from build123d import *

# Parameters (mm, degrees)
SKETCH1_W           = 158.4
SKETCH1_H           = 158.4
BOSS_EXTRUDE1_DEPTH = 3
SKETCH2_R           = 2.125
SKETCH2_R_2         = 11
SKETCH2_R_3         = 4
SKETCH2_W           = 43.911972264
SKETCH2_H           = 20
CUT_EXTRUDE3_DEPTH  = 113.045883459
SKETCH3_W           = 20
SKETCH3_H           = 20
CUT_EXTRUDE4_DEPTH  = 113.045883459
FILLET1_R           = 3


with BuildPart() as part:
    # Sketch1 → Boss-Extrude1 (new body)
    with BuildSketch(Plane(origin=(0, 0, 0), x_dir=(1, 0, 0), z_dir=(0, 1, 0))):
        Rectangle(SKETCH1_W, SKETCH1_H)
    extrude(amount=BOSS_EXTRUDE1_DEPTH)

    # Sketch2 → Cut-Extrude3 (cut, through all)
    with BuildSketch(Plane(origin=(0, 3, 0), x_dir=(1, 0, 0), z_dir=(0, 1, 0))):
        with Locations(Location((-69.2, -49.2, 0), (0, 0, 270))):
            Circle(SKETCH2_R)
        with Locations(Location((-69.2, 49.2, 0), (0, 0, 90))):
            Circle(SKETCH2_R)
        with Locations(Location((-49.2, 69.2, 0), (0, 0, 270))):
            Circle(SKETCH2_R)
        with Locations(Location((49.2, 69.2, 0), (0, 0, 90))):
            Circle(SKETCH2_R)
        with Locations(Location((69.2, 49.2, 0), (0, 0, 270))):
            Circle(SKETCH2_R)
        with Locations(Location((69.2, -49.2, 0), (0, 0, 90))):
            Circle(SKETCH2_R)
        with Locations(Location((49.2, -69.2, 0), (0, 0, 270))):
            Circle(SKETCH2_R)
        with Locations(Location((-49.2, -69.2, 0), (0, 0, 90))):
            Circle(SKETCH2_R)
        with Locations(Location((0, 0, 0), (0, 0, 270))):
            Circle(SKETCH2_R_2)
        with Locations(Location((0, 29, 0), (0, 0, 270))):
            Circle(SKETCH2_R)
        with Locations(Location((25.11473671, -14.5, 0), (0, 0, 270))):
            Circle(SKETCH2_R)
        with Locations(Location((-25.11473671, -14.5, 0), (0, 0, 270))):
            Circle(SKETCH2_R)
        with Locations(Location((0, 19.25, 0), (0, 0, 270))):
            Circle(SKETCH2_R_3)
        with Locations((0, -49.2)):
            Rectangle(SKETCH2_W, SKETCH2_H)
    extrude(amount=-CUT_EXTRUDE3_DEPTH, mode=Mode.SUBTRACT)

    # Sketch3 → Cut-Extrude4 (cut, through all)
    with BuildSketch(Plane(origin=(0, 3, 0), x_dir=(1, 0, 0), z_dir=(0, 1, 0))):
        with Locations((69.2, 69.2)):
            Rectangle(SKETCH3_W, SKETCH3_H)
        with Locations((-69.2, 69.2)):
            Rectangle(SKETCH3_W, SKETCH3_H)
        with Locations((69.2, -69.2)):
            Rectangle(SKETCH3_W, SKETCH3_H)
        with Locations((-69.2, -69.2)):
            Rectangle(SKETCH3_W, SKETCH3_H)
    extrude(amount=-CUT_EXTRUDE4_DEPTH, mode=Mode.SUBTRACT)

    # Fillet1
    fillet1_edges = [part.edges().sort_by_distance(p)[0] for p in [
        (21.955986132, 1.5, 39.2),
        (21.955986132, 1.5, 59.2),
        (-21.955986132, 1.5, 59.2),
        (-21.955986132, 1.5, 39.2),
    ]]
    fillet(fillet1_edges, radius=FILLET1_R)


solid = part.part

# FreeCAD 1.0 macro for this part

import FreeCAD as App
import Part
import Sketcher
from FreeCAD import Vector


def edges_at(feature, points):
    """Names of the edges that pass closest to the given points."""
    edges = feature.Shape.Edges
    near = lambda p: min(range(len(edges)), key=lambda i: edges[i].distToShape(Part.Vertex(*p))[0])
    return sorted({f"Edge{near(p) + 1}" for p in points})

doc = App.newDocument("Part")
params = doc.addObject("Spreadsheet::Sheet", "Params")
for row, (alias, value) in enumerate([
    ("sketch1_width", "158.4 mm"),
    ("pad1_length", "3 mm"),
    ("sketch2_diameter", "22 mm"),
    ("sketch2_diameter2", "8 mm"),
    ("sketch2_diameter3", "4.25 mm"),
    ("sketch2_height", "20 mm"),
    ("sketch3_width", "20 mm"),
    ("fillet_radius", "3 mm"),
], start=1):
    params.set(f"A{row}", alias)
    params.set(f"B{row}", "=" + value)
    params.setAlias(f"B{row}", alias)

body = doc.addObject("PartDesign::Body", "Body")

sketch1 = doc.addObject("Sketcher::SketchObject", "Sketch")
body.addObject(sketch1)
sketch1.AttachmentSupport = (doc.XZ_Plane, [""])
sketch1.MapMode = "FlatFace"
sketch1.addGeometry(Part.LineSegment(Vector(-79, -79, 0), Vector(-79, 79, 0)), False)
sketch1.addGeometry(Part.LineSegment(Vector(-79, 79, 0), Vector(79, 79, 0)), False)
sketch1.addGeometry(Part.LineSegment(Vector(79, 79, 0), Vector(79, -79, 0)), False)
sketch1.addGeometry(Part.LineSegment(Vector(79, -79, 0), Vector(-79, -79, 0)), False)
sketch1.addConstraint(Sketcher.Constraint("Coincident", 0, 2, 1, 1))
sketch1.addConstraint(Sketcher.Constraint("Coincident", 1, 2, 2, 1))
sketch1.addConstraint(Sketcher.Constraint("Coincident", 2, 2, 3, 1))
sketch1.addConstraint(Sketcher.Constraint("Coincident", 3, 2, 0, 1))
sketch1.addConstraint(Sketcher.Constraint("Vertical", 0))
sketch1.addConstraint(Sketcher.Constraint("Horizontal", 1))
sketch1.addConstraint(Sketcher.Constraint("Vertical", 2))
sketch1.addConstraint(Sketcher.Constraint("Horizontal", 3))
sketch1.addConstraint(Sketcher.Constraint("Symmetric", 0, 2, 2, 2, -1, 1))
sketch1.addConstraint(Sketcher.Constraint("Equal", 3, 0))
sketch1.addConstraint(Sketcher.Constraint("DistanceX", 1, 1, 1, 2, 158.4))
sketch1.setExpression("Constraints[10]", "Params.sketch1_width")
pad1 = doc.addObject("PartDesign::Pad", "Pad")
body.addObject(pad1)
pad1.Profile = sketch1
pad1.setExpression("Length", "Params.pad1_length")
pad1.Reversed = True

sketch2 = doc.addObject("Sketcher::SketchObject", "Sketch001")
body.addObject(sketch2)
sketch2.AttachmentSupport = (doc.XZ_Plane, [""])
sketch2.MapMode = "FlatFace"
sketch2.AttachmentOffset = App.Placement(Vector(0, 0, -3), App.Rotation())
sketch2.addGeometry(Part.Circle(Vector(-69.2, 49.2, 0), Vector(0, 0, 1), 2.1), False)
sketch2.addGeometry(Part.Circle(Vector(-69.2, -49.2, 0), Vector(0, 0, 1), 2.1), False)
sketch2.addGeometry(Part.Circle(Vector(-49.2, -69.2, 0), Vector(0, 0, 1), 2.1), False)
sketch2.addGeometry(Part.Circle(Vector(49.2, -69.2, 0), Vector(0, 0, 1), 2.1), False)
sketch2.addGeometry(Part.Circle(Vector(69.2, -49.2, 0), Vector(0, 0, 1), 2.1), False)
sketch2.addGeometry(Part.Circle(Vector(69.2, 49.2, 0), Vector(0, 0, 1), 2.1), False)
sketch2.addGeometry(Part.Circle(Vector(49.2, 69.2, 0), Vector(0, 0, 1), 2.1), False)
sketch2.addGeometry(Part.Circle(Vector(-49.2, 69.2, 0), Vector(0, 0, 1), 2.1), False)
sketch2.addGeometry(Part.Circle(Vector(0, 0, 0), Vector(0, 0, 1), 11), False)
sketch2.addGeometry(Part.Circle(Vector(0, -29, 0), Vector(0, 0, 1), 2.1), False)
sketch2.addGeometry(Part.Circle(Vector(25.1, 14.5, 0), Vector(0, 0, 1), 2.1), False)
sketch2.addGeometry(Part.Circle(Vector(-25.1, 14.5, 0), Vector(0, 0, 1), 2.1), False)
sketch2.addGeometry(Part.Circle(Vector(0, -19.2, 0), Vector(0, 0, 1), 4), False)
sketch2.addGeometry(Part.LineSegment(Vector(-22, 39.2, 0), Vector(-22, 59.2, 0)), False)
sketch2.addGeometry(Part.LineSegment(Vector(-22, 59.2, 0), Vector(22, 59.2, 0)), False)
sketch2.addGeometry(Part.LineSegment(Vector(22, 59.2, 0), Vector(22, 39.2, 0)), False)
sketch2.addGeometry(Part.LineSegment(Vector(22, 39.2, 0), Vector(-22, 39.2, 0)), False)
sketch2.addConstraint(Sketcher.Constraint("Coincident", 13, 2, 14, 1))
sketch2.addConstraint(Sketcher.Constraint("Coincident", 14, 2, 15, 1))
sketch2.addConstraint(Sketcher.Constraint("Coincident", 15, 2, 16, 1))
sketch2.addConstraint(Sketcher.Constraint("Coincident", 16, 2, 13, 1))
sketch2.addConstraint(Sketcher.Constraint("Vertical", 13))
sketch2.addConstraint(Sketcher.Constraint("Horizontal", 14))
sketch2.addConstraint(Sketcher.Constraint("Vertical", 15))
sketch2.addConstraint(Sketcher.Constraint("Horizontal", 16))
sketch2.addConstraint(Sketcher.Constraint("Coincident", 8, 3, -1, 1))
sketch2.addConstraint(Sketcher.Constraint("Equal", 0, 1))
sketch2.addConstraint(Sketcher.Constraint("Equal", 1, 2))
sketch2.addConstraint(Sketcher.Constraint("Equal", 2, 3))
sketch2.addConstraint(Sketcher.Constraint("Equal", 3, 4))
sketch2.addConstraint(Sketcher.Constraint("Equal", 4, 5))
sketch2.addConstraint(Sketcher.Constraint("Equal", 5, 6))
sketch2.addConstraint(Sketcher.Constraint("Equal", 6, 7))
sketch2.addConstraint(Sketcher.Constraint("Equal", 7, 9))
sketch2.addConstraint(Sketcher.Constraint("Equal", 9, 10))
sketch2.addConstraint(Sketcher.Constraint("Equal", 10, 11))
sketch2.addConstraint(Sketcher.Constraint("Symmetric", 0, 3, 4, 3, -1, 1))
sketch2.addConstraint(Sketcher.Constraint("Symmetric", 1, 3, 5, 3, -1, 1))
sketch2.addConstraint(Sketcher.Constraint("Symmetric", 2, 3, 6, 3, -1, 1))
sketch2.addConstraint(Sketcher.Constraint("Symmetric", 3, 3, 7, 3, -1, 1))
sketch2.addConstraint(Sketcher.Constraint("Symmetric", 2, 3, 3, 3, -2))
sketch2.addConstraint(Sketcher.Constraint("Symmetric", 1, 3, 4, 3, -2))
sketch2.addConstraint(Sketcher.Constraint("Symmetric", 10, 3, 11, 3, -2))
sketch2.addConstraint(Sketcher.Constraint("PointOnObject", 9, 3, -2))
sketch2.addConstraint(Sketcher.Constraint("PointOnObject", 12, 3, -2))
sketch2.addConstraint(Sketcher.Constraint("Diameter", 8, 22.0))
sketch2.addConstraint(Sketcher.Constraint("Diameter", 12, 8.0))
sketch2.addConstraint(Sketcher.Constraint("Diameter", 0, 4.25))
sketch2.addConstraint(Sketcher.Constraint("DistanceY", 13, 1, 13, 2, 20.0))
sketch2.addConstraint(Sketcher.Constraint("DistanceY", 9, 3, -1, 1, 29.0))
sketch2.addConstraint(Sketcher.Constraint("DistanceX", 1, 3, 2, 3, 20.0))
sketch2.addConstraint(Sketcher.Constraint("DistanceY", 2, 3, 1, 3, 20.0))
sketch2.addConstraint(Sketcher.Constraint("DistanceY", 13, 2, 7, 3, 10.0))
sketch2.addConstraint(Sketcher.Constraint("DistanceX", 0, 3, -1, 1, 69.2))
sketch2.addConstraint(Sketcher.Constraint("DistanceY", -1, 1, 0, 3, 49.2))
sketch2.addConstraint(Sketcher.Constraint("DistanceY", -1, 1, 10, 3, 14.5))
sketch2.addConstraint(Sketcher.Constraint("DistanceY", 12, 3, -1, 1, 19.25))
sketch2.addConstraint(Sketcher.Constraint("DistanceX", 14, 1, 14, 2, 43.911972))
sketch2.addConstraint(Sketcher.Constraint("DistanceX", 11, 3, 13, 2, 3.158751))
sketch2.addConstraint(Sketcher.Constraint("DistanceX", 14, 2, 10, 3, 3.158751))
sketch2.setExpression("Constraints[28]", "Params.sketch2_diameter")
sketch2.setExpression("Constraints[29]", "Params.sketch2_diameter2")
sketch2.setExpression("Constraints[30]", "Params.sketch2_diameter3")
sketch2.setExpression("Constraints[31]", "Params.sketch2_height")
pocket1 = doc.addObject("PartDesign::Pocket", "Pocket")
body.addObject(pocket1)
pocket1.Profile = sketch2
pocket1.Type = "ThroughAll"
pocket1.Reversed = True

sketch3 = doc.addObject("Sketcher::SketchObject", "Sketch002")
body.addObject(sketch3)
sketch3.AttachmentSupport = (doc.XZ_Plane, [""])
sketch3.MapMode = "FlatFace"
sketch3.AttachmentOffset = App.Placement(Vector(0, 0, -3), App.Rotation())
sketch3.addGeometry(Part.LineSegment(Vector(59, -79, 0), Vector(59, -59, 0)), False)
sketch3.addGeometry(Part.LineSegment(Vector(59, -59, 0), Vector(79, -59, 0)), False)
sketch3.addGeometry(Part.LineSegment(Vector(79, -59, 0), Vector(79, -79, 0)), False)
sketch3.addGeometry(Part.LineSegment(Vector(79, -79, 0), Vector(59, -79, 0)), False)
sketch3.addGeometry(Part.LineSegment(Vector(-79, -79, 0), Vector(-79, -59, 0)), False)
sketch3.addGeometry(Part.LineSegment(Vector(-79, -59, 0), Vector(-59, -59, 0)), False)
sketch3.addGeometry(Part.LineSegment(Vector(-59, -59, 0), Vector(-59, -79, 0)), False)
sketch3.addGeometry(Part.LineSegment(Vector(-59, -79, 0), Vector(-79, -79, 0)), False)
sketch3.addGeometry(Part.LineSegment(Vector(59, 59, 0), Vector(59, 79, 0)), False)
sketch3.addGeometry(Part.LineSegment(Vector(59, 79, 0), Vector(79, 79, 0)), False)
sketch3.addGeometry(Part.LineSegment(Vector(79, 79, 0), Vector(79, 59, 0)), False)
sketch3.addGeometry(Part.LineSegment(Vector(79, 59, 0), Vector(59, 59, 0)), False)
sketch3.addGeometry(Part.LineSegment(Vector(-79, 59, 0), Vector(-79, 79, 0)), False)
sketch3.addGeometry(Part.LineSegment(Vector(-79, 79, 0), Vector(-59, 79, 0)), False)
sketch3.addGeometry(Part.LineSegment(Vector(-59, 79, 0), Vector(-59, 59, 0)), False)
sketch3.addGeometry(Part.LineSegment(Vector(-59, 59, 0), Vector(-79, 59, 0)), False)
sketch3.addConstraint(Sketcher.Constraint("Coincident", 0, 2, 1, 1))
sketch3.addConstraint(Sketcher.Constraint("Coincident", 1, 2, 2, 1))
sketch3.addConstraint(Sketcher.Constraint("Coincident", 2, 2, 3, 1))
sketch3.addConstraint(Sketcher.Constraint("Coincident", 3, 2, 0, 1))
sketch3.addConstraint(Sketcher.Constraint("Coincident", 4, 2, 5, 1))
sketch3.addConstraint(Sketcher.Constraint("Coincident", 5, 2, 6, 1))
sketch3.addConstraint(Sketcher.Constraint("Coincident", 6, 2, 7, 1))
sketch3.addConstraint(Sketcher.Constraint("Coincident", 7, 2, 4, 1))
sketch3.addConstraint(Sketcher.Constraint("Coincident", 8, 2, 9, 1))
sketch3.addConstraint(Sketcher.Constraint("Coincident", 9, 2, 10, 1))
sketch3.addConstraint(Sketcher.Constraint("Coincident", 10, 2, 11, 1))
sketch3.addConstraint(Sketcher.Constraint("Coincident", 11, 2, 8, 1))
sketch3.addConstraint(Sketcher.Constraint("Coincident", 12, 2, 13, 1))
sketch3.addConstraint(Sketcher.Constraint("Coincident", 13, 2, 14, 1))
sketch3.addConstraint(Sketcher.Constraint("Coincident", 14, 2, 15, 1))
sketch3.addConstraint(Sketcher.Constraint("Coincident", 15, 2, 12, 1))
sketch3.addConstraint(Sketcher.Constraint("Vertical", 0))
sketch3.addConstraint(Sketcher.Constraint("Horizontal", 1))
sketch3.addConstraint(Sketcher.Constraint("Vertical", 2))
sketch3.addConstraint(Sketcher.Constraint("Horizontal", 3))
sketch3.addConstraint(Sketcher.Constraint("Vertical", 4))
sketch3.addConstraint(Sketcher.Constraint("Horizontal", 5))
sketch3.addConstraint(Sketcher.Constraint("Vertical", 6))
sketch3.addConstraint(Sketcher.Constraint("Horizontal", 7))
sketch3.addConstraint(Sketcher.Constraint("Vertical", 8))
sketch3.addConstraint(Sketcher.Constraint("Horizontal", 9))
sketch3.addConstraint(Sketcher.Constraint("Vertical", 10))
sketch3.addConstraint(Sketcher.Constraint("Horizontal", 11))
sketch3.addConstraint(Sketcher.Constraint("Vertical", 12))
sketch3.addConstraint(Sketcher.Constraint("Horizontal", 13))
sketch3.addConstraint(Sketcher.Constraint("Vertical", 14))
sketch3.addConstraint(Sketcher.Constraint("Horizontal", 15))
sketch3.addConstraint(Sketcher.Constraint("Symmetric", 6, 2, 8, 2, -1, 1))
sketch3.addConstraint(Sketcher.Constraint("Symmetric", 4, 2, 10, 2, -1, 1))
sketch3.addConstraint(Sketcher.Constraint("Symmetric", 2, 2, 12, 2, -1, 1))
sketch3.addConstraint(Sketcher.Constraint("Symmetric", 0, 2, 14, 2, -1, 1))
sketch3.addConstraint(Sketcher.Constraint("Symmetric", 1, 2, 4, 2, -2))
sketch3.addConstraint(Sketcher.Constraint("Symmetric", 3, 2, 6, 2, -2))
sketch3.addConstraint(Sketcher.Constraint("Equal", 15, 0))
sketch3.addConstraint(Sketcher.Constraint("DistanceX", 1, 1, 1, 2, 20.0))
sketch3.addConstraint(Sketcher.Constraint("DistanceX", -1, 1, 0, 2, 59.2))
sketch3.addConstraint(Sketcher.Constraint("DistanceY", 0, 2, -1, 1, 59.2))
sketch3.setExpression("Constraints[39]", "Params.sketch3_width")
pocket2 = doc.addObject("PartDesign::Pocket", "Pocket001")
body.addObject(pocket2)
pocket2.Profile = sketch3
pocket2.Type = "ThroughAll"
pocket2.Reversed = True
doc.recompute()

fillet = doc.addObject("PartDesign::Fillet", "Fillet")
body.addObject(fillet)
fillet.Base = (pocket2, edges_at(pocket2, [
    (21.956, 1.5, 39.2),
    (21.956, 1.5, 59.2),
    (-21.956, 1.5, 59.2),
    (-21.956, 1.5, 39.2),
]))
fillet.setExpression("Radius", "Params.fillet_radius")

doc.recompute()
